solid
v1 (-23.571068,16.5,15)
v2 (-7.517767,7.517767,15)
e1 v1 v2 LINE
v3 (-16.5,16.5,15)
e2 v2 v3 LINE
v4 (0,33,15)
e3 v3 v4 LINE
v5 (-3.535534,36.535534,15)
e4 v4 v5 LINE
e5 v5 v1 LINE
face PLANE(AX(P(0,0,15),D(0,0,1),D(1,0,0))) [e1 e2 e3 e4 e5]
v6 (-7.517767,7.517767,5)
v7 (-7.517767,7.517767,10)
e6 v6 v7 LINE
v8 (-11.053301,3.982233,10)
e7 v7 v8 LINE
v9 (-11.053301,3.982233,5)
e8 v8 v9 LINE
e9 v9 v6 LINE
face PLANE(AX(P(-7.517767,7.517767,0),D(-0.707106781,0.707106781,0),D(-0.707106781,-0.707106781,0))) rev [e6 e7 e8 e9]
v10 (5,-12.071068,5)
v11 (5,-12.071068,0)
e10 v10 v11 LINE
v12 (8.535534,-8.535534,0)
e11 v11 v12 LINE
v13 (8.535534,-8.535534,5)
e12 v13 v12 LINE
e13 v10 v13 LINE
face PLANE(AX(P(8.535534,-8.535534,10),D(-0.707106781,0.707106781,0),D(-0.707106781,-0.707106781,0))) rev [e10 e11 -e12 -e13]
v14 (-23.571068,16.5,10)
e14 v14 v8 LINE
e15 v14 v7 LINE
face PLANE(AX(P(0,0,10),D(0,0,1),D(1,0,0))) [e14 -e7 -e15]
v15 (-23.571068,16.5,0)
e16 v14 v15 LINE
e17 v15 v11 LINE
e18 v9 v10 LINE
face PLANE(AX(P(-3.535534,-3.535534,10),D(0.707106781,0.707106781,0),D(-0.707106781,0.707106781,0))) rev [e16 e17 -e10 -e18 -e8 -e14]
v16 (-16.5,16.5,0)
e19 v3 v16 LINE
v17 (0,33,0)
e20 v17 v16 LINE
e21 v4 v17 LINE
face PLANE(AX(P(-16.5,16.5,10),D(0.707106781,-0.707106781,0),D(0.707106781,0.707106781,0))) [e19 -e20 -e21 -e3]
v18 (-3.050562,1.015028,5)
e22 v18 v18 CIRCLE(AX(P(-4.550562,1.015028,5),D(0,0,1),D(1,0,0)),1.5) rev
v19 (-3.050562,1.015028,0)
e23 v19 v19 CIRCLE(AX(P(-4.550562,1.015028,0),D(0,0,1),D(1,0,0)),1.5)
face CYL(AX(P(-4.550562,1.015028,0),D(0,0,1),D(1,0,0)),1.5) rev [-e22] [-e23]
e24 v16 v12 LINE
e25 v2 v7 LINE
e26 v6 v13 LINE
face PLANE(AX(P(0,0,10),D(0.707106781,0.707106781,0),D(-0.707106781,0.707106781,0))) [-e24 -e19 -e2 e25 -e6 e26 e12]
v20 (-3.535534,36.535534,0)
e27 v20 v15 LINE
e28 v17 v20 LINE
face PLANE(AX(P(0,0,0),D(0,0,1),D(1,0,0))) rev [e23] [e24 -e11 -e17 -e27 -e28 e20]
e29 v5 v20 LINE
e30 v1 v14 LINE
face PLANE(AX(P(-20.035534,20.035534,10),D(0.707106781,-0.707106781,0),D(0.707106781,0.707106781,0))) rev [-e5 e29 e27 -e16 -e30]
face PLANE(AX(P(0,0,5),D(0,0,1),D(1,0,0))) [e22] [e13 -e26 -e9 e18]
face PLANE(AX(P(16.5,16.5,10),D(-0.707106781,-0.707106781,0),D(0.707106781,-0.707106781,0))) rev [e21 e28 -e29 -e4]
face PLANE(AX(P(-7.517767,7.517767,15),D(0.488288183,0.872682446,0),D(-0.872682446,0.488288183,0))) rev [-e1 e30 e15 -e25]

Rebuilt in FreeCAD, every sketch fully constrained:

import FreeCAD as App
import Part
import Sketcher
from FreeCAD import Vector
Q = App.Units.Quantity

doc = App.newDocument("Part")
params = doc.addObject("Spreadsheet::Sheet", "Params")
for row, (alias, value) in enumerate([
    ("sketch1_length", "5 mm"),
    ("pad1_length", "10 mm"),
    ("sketch2_diameter", "3 mm"),
    ("pocket1_length", "10 mm"),
    ("sketch3_diameter", "3 mm"),
    ("pocket2_length", "5 mm"),
    ("sketch4_width", "5 mm"),
    ("pocket3_length", "5 mm"),
    ("sketch5_length", "5 mm"),
    ("pad2_length", "5 mm"),
], start=1):
    params.set(f"A{row}", alias)
    params.set(f"B{row}", "=" + value)
    params.setAlias(f"B{row}", alias)

body = doc.addObject("PartDesign::Body", "Body")

sketch1 = doc.addObject("Sketcher::SketchObject", "Sketch")
body.addObject(sketch1)
sketch1.AttachmentSupport = (doc.XY_Plane, [""])
sketch1.MapMode = "FlatFace"
sketch1.addGeometry([
    Part.LineSegment(Vector(-24, 16, 0), Vector(5, -12, 0)),
    Part.LineSegment(Vector(5, -12, 0), Vector(9, -9, 0)),
    Part.LineSegment(Vector(9, -9, 0), Vector(-16, 16, 0)),
    Part.LineSegment(Vector(-16, 16, 0), Vector(0, 33, 0)),
    Part.LineSegment(Vector(0, 33, 0), Vector(-4, 37, 0)),
    Part.LineSegment(Vector(-4, 37, 0), Vector(-24, 16, 0)),
], False)
sketch1.addConstraint([
    Sketcher.Constraint("Coincident", 0, 2, 1, 1),
    Sketcher.Constraint("Coincident", 1, 2, 2, 1),
    Sketcher.Constraint("Coincident", 2, 2, 3, 1),
    Sketcher.Constraint("Coincident", 3, 2, 4, 1),
    Sketcher.Constraint("Coincident", 4, 2, 5, 1),
    Sketcher.Constraint("Coincident", 5, 2, 0, 1),
    Sketcher.Constraint("PointOnObject", 3, 2, -2),
    Sketcher.Constraint("Perpendicular", 0, 1),
    Sketcher.Constraint("Perpendicular", 1, 2),
    Sketcher.Constraint("Perpendicular", 2, 3),
    Sketcher.Constraint("Perpendicular", 3, 4),
    Sketcher.Constraint("Perpendicular", 4, 5),
    Sketcher.Constraint("Horizontal", 2, 2, 5, 2),
    Sketcher.Constraint("Equal", 1, 4),
    Sketcher.Constraint("Distance", 1, 5.0),
    Sketcher.Constraint("DistanceX", -1, 1, 0, 2, 5.0),
    Sketcher.Constraint("DistanceY", -1, 1, 3, 2, 33.0),
    Sketcher.Constraint("DistanceX", 2, 2, -1, 1, 16.5),
])
sketch1.setExpression("Constraints[14]", "Params.sketch1_length")
pad1 = doc.addObject("PartDesign::Pad", "Pad")
body.addObject(pad1)
pad1.Profile = sketch1
pad1.setExpression("Length", "Params.pad1_length")

sketch2 = doc.addObject("Sketcher::SketchObject", "Sketch001")
body.addObject(sketch2)
sketch2.AttachmentSupport = (doc.XY_Plane, [""])
sketch2.MapMode = "FlatFace"
sketch2.AttachmentOffset = App.Placement(Vector(0, 0, 10), App.Rotation())
sketch2.addGeometry(Part.Circle(Vector(-4.6, 1, 0), Vector(0, 0, 1), 1.5), False)
sketch2.addConstraint([
    Sketcher.Constraint("Diameter", 0, 3.0),
    Sketcher.Constraint("DistanceX", 0, 3, -1, 1, 4.550562),
    Sketcher.Constraint("DistanceY", -1, 1, 0, 3, 1.015028),
])
sketch2.setExpression("Constraints[0]", "Params.sketch2_diameter")
pocket1 = doc.addObject("PartDesign::Pocket", "Pocket")
body.addObject(pocket1)
pocket1.Profile = sketch2
pocket1.setExpression("Length", "Params.pocket1_length")

sketch3 = doc.addObject("Sketcher::SketchObject", "Sketch002")
body.addObject(sketch3)
sketch3.AttachmentSupport = (doc.XY_Plane, [""])
sketch3.MapMode = "FlatFace"
sketch3.AttachmentOffset = App.Placement(Vector(0, 0, 10), App.Rotation())
sketch3.addGeometry([
    Part.LineSegment(Vector(-1.6, 6.4, 0), Vector(-9.3, -1.4, 0)),
    Part.LineSegment(Vector(-9.3, -1.4, 0), Vector(6.1, -17.3, 0)),
    Part.LineSegment(Vector(6.1, -17.3, 0), Vector(15, -7.3, 0)),
    Part.LineSegment(Vector(15, -7.3, 0), Vector(-1.6, 6.4, 0)),
    Part.Circle(Vector(-4.6, 1, 0), Vector(0, 0, 1), 1.5),
], False)
sketch3.addConstraint([
    Sketcher.Constraint("Coincident", 0, 2, 1, 1),
    Sketcher.Constraint("Coincident", 1, 2, 2, 1),
    Sketcher.Constraint("Coincident", 2, 2, 3, 1),
    Sketcher.Constraint("Coincident", 3, 2, 0, 1),
    Sketcher.Constraint("Diameter", 4, 3.0),
    Sketcher.Constraint("Angle", 0, Q("-135 deg")),
    Sketcher.Constraint("Distance", 0, 10.947),
    Sketcher.Constraint("DistanceX", 4, 3, 3, 2, 2.9541),
    Sketcher.Constraint("Distance", 1, 22.228641),
    Sketcher.Constraint("DistanceX", 4, 3, -1, 1, 4.550562),
    Sketcher.Constraint("DistanceX", -1, 1, 2, 2, 15.036479),
    Sketcher.Constraint("DistanceY", 2, 2, -1, 1, 7.320061),
    Sketcher.Constraint("DistanceY", 0, 2, 4, 3, 2.387721),
    Sketcher.Constraint("DistanceY", 1, 2, 4, 3, 18.338862),
    Sketcher.Constraint("DistanceY", 2, 2, 4, 3, 8.335089),
])
sketch3.setExpression("Constraints[4]", "Params.sketch3_diameter")
pocket2 = doc.addObject("PartDesign::Pocket", "Pocket001")
body.addObject(pocket2)
pocket2.Profile = sketch3
pocket2.setExpression("Length", "Params.pocket2_length")

sketch4 = doc.addObject("Sketcher::SketchObject", "Sketch003")
body.addObject(sketch4)
sketch4.Placement = App.Placement(Vector(-3.982233, 3.982233, 0), App.Rotation(Vector(0, 0, -1), Vector(0.707106781, 0.707106781, 0), Vector(0.707106781, -0.707106781, 0), "ZXY"))
sketch4.addGeometry([
    Part.LineSegment(Vector(-10, 0, 0), Vector(-10, -5, 0)),
    Part.LineSegment(Vector(-10, -5, 0), Vector(-5, -5, 0)),
    Part.LineSegment(Vector(-5, -5, 0), Vector(-5, 0, 0)),
    Part.LineSegment(Vector(-5, 0, 0), Vector(-10, 0, 0)),
], False)
sketch4.addConstraint([
    Sketcher.Constraint("Coincident", 0, 2, 1, 1),
    Sketcher.Constraint("Coincident", 1, 2, 2, 1),
    Sketcher.Constraint("Coincident", 2, 2, 3, 1),
    Sketcher.Constraint("Coincident", 3, 2, 0, 1),
    Sketcher.Constraint("Vertical", 0),
    Sketcher.Constraint("Horizontal", 1),
    Sketcher.Constraint("Vertical", 2),
    Sketcher.Constraint("Horizontal", 3),
    Sketcher.Constraint("PointOnObject", 2, 2, -1),
    Sketcher.Constraint("Equal", 3, 0),
    Sketcher.Constraint("DistanceX", 1, 1, 1, 2, 5.0),
    Sketcher.Constraint("DistanceX", 0, 2, -1, 1, 10.0),
])
sketch4.setExpression("Constraints[10]", "Params.sketch4_width")
pocket3 = doc.addObject("PartDesign::Pocket", "Pocket002")
body.addObject(pocket3)
pocket3.Profile = sketch4
pocket3.setExpression("Length", "Params.pocket3_length")

sketch5 = doc.addObject("Sketcher::SketchObject", "Sketch004")
body.addObject(sketch5)
sketch5.AttachmentSupport = (doc.XY_Plane, [""])
sketch5.MapMode = "FlatFace"
sketch5.AttachmentOffset = App.Placement(Vector(0, 0, 10), App.Rotation())
sketch5.addGeometry([
    Part.LineSegment(Vector(-24, 16, 0), Vector(-8, 8, 0)),
    Part.LineSegment(Vector(-8, 8, 0), Vector(-16, 16, 0)),
    Part.LineSegment(Vector(-16, 16, 0), Vector(0, 33, 0)),
    Part.LineSegment(Vector(0, 33, 0), Vector(-4, 37, 0)),
    Part.LineSegment(Vector(-4, 37, 0), Vector(-24, 16, 0)),
], False)
sketch5.addConstraint([
    Sketcher.Constraint("Coincident", 0, 2, 1, 1),
    Sketcher.Constraint("Coincident", 1, 2, 2, 1),
    Sketcher.Constraint("Coincident", 2, 2, 3, 1),
    Sketcher.Constraint("Coincident", 3, 2, 4, 1),
    Sketcher.Constraint("Coincident", 4, 2, 0, 1),
    Sketcher.Constraint("PointOnObject", 2, 2, -2),
    Sketcher.Constraint("Perpendicular", 1, 2),
    Sketcher.Constraint("Perpendicular", 2, 3),
    Sketcher.Constraint("Perpendicular", 3, 4),
    Sketcher.Constraint("Horizontal", 1, 2, 4, 2),
    Sketcher.Constraint("Angle", 1, Q("135 deg")),
    Sketcher.Constraint("Distance", 3, 5.0),
    Sketcher.Constraint("DistanceY", -1, 1, 2, 2, 33.0),
    Sketcher.Constraint("DistanceX", 1, 2, -1, 1, 16.5),
    Sketcher.Constraint("DistanceX", 4, 2, 0, 2, 16.053301),
])
sketch5.setExpression("Constraints[11]", "Params.sketch5_length")
pad2 = doc.addObject("PartDesign::Pad", "Pad001")
body.addObject(pad2)
pad2.Profile = sketch5
pad2.setExpression("Length", "Params.pad2_length")

doc.recompute()
